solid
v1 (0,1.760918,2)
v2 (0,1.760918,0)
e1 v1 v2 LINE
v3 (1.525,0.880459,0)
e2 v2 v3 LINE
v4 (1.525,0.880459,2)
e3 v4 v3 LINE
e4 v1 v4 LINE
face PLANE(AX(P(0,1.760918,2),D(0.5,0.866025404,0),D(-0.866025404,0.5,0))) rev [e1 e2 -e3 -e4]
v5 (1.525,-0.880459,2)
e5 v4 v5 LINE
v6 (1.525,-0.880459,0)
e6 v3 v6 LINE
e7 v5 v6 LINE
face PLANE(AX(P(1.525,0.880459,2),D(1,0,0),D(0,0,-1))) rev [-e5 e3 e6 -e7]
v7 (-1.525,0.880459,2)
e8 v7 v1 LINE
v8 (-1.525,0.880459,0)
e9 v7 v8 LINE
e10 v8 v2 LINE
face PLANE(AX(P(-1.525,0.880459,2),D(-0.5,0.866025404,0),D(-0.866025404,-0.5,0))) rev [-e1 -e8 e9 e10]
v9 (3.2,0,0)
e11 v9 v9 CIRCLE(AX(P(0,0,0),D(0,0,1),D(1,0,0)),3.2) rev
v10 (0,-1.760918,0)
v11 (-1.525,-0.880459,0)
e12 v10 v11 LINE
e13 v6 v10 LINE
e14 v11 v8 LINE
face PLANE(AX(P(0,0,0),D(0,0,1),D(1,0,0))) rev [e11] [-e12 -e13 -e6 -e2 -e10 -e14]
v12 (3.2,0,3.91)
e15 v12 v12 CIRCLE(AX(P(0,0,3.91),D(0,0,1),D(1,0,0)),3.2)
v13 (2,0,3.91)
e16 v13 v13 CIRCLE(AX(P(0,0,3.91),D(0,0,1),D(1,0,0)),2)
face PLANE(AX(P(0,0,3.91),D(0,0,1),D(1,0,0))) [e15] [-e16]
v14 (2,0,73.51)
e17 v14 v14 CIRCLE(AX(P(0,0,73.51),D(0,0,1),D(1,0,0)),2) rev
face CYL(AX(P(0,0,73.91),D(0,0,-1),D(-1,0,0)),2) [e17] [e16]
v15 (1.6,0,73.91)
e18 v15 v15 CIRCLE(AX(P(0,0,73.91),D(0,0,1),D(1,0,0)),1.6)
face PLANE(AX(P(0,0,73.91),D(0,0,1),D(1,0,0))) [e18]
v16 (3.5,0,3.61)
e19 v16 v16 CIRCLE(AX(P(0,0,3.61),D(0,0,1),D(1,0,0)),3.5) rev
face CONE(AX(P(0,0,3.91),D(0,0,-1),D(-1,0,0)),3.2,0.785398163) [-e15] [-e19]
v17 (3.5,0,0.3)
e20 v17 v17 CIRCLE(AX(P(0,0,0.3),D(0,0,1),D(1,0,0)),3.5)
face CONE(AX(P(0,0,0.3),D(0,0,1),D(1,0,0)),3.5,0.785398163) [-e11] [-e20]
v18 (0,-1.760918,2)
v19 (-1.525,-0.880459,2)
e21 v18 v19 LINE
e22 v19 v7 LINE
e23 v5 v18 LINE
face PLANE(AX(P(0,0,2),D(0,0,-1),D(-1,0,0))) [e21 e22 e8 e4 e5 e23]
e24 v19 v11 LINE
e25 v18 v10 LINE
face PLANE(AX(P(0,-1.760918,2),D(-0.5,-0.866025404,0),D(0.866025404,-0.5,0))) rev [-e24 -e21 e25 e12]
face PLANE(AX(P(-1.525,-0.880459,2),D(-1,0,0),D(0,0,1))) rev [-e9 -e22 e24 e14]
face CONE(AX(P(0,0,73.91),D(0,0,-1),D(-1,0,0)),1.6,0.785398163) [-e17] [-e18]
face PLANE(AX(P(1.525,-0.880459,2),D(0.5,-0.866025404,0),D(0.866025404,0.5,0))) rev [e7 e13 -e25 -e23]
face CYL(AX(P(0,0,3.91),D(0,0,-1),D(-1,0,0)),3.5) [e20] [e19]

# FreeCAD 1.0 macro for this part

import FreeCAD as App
import Part
import Sketcher
from FreeCAD import Vector
Q = App.Units.Quantity


def edges_at(feature, points):
    """Names of the edges that pass closest to the given points."""
    edges = feature.Shape.Edges
    near = lambda p: min(range(len(edges)), key=lambda i: edges[i].distToShape(Part.Vertex(*p))[0])
    return sorted({f"Edge{near(p) + 1}" for p in points})


def add_polygon(sketch, points):
    """Adds a closed chain of lines whose ends are joined by coincident constraints."""
    first, n = sketch.GeometryCount, len(points)
    for a, b in zip(points, points[1:] + points[:1]):
        sketch.addGeometry(Part.LineSegment(App.Vector(*a, 0), App.Vector(*b, 0)), False)
    for i in range(n):
        sketch.addConstraint(Sketcher.Constraint("Coincident", first + i, 2, first + (i + 1) % n, 1))

doc = App.newDocument("Part")
params = doc.addObject("Spreadsheet::Sheet", "Params")
for row, (alias, value) in enumerate([
    ("sketch1_diameter", "7 mm"),
    ("pad1_length", "3.91 mm"),
    ("sketch2_diameter", "4 mm"),
    ("pad2_length", "70 mm"),
    ("pocket1_length", "2 mm"),
    ("chamfer_size", "0.4 mm"),
    ("chamfer2_size", "0.3 mm"),
], start=1):
    params.set(f"A{row}", alias)
    params.set(f"B{row}", "=" + value)
    params.setAlias(f"B{row}", alias)

body = doc.addObject("PartDesign::Body", "Body")

sketch1 = body.newObject("Sketcher::SketchObject", "Sketch")
sketch1.AttachmentSupport = (doc.getObject("XY_Plane"), [""])
sketch1.MapMode = "FlatFace"
sketch1.addGeometry(Part.Circle(Vector(0, 0, 0), Vector(0, 0, 1), 3.5), False)
sketch1.addConstraint([
    Sketcher.Constraint("Coincident", 0, 3, -1, 1),
    Sketcher.Constraint("Diameter", 0, 7.0),
])
sketch1.setExpression("Constraints[1]", "Params.sketch1_diameter")
pad1 = body.newObject("PartDesign::Pad", "Pad")
pad1.Profile = sketch1
pad1.setExpression("Length", "Params.pad1_length")

sketch2 = body.newObject("Sketcher::SketchObject", "Sketch001")
sketch2.AttachmentSupport = (doc.getObject("XY_Plane"), [""])
sketch2.MapMode = "FlatFace"
sketch2.AttachmentOffset = App.Placement(Vector(0, 0, 3.91), App.Rotation())
sketch2.addGeometry(Part.Circle(Vector(0, 0, 0), Vector(0, 0, 1), 2), False)
sketch2.addConstraint([
    Sketcher.Constraint("Coincident", 0, 3, -1, 1),
    Sketcher.Constraint("Diameter", 0, 4.0),
])
sketch2.setExpression("Constraints[1]", "Params.sketch2_diameter")
pad2 = body.newObject("PartDesign::Pad", "Pad001")
pad2.Profile = sketch2
pad2.setExpression("Length", "Params.pad2_length")

sketch3 = body.newObject("Sketcher::SketchObject", "Sketch002")
sketch3.AttachmentSupport = (doc.getObject("XY_Plane"), [""])
sketch3.MapMode = "FlatFace"
add_polygon(sketch3, [(0, 1.8), (1.5, 0.9), (1.5, -0.9), (0, -1.8), (-1.5, -0.9), (-1.5, 0.9)])
sketch3.addConstraint([
    Sketcher.Constraint("Vertical", 1),
    Sketcher.Constraint("Vertical", 4),
    Sketcher.Constraint("Symmetric", 0, 2, 3, 2, -1, 1),
    Sketcher.Constraint("Symmetric", 2, 2, 5, 2, -1, 1),
    Sketcher.Constraint("PointOnObject", 2, 2, -2),
    Sketcher.Constraint("Parallel", 2, 5),
    Sketcher.Constraint("Horizontal", 1, 2, 3, 2),
    Sketcher.Constraint("Angle", 0, Q("-30 deg")),
    Sketcher.Constraint("DistanceX", 3, 2, 1, 2, 3.05),
    Sketcher.Constraint("DistanceY", 1, 2, 1, 1, 1.760918),
])
pocket1 = body.newObject("PartDesign::Pocket", "Pocket")
pocket1.Profile = sketch3
pocket1.setExpression("Length", "Params.pocket1_length")
pocket1.Reversed = True
doc.recompute()

chamfer = body.newObject("PartDesign::Chamfer", "Chamfer")
chamfer.Base = (pocket1, edges_at(pocket1, [(-2, 0, 73.91)]))
chamfer.setExpression("Size", "Params.chamfer_size")
doc.recompute()

chamfer2 = body.newObject("PartDesign::Chamfer", "Chamfer001")
chamfer2.Base = (chamfer, edges_at(chamfer, [(-3.5, 0, 0), (-3.5, 0, 3.91)]))
chamfer2.setExpression("Size", "Params.chamfer2_size")

doc.recompute()
